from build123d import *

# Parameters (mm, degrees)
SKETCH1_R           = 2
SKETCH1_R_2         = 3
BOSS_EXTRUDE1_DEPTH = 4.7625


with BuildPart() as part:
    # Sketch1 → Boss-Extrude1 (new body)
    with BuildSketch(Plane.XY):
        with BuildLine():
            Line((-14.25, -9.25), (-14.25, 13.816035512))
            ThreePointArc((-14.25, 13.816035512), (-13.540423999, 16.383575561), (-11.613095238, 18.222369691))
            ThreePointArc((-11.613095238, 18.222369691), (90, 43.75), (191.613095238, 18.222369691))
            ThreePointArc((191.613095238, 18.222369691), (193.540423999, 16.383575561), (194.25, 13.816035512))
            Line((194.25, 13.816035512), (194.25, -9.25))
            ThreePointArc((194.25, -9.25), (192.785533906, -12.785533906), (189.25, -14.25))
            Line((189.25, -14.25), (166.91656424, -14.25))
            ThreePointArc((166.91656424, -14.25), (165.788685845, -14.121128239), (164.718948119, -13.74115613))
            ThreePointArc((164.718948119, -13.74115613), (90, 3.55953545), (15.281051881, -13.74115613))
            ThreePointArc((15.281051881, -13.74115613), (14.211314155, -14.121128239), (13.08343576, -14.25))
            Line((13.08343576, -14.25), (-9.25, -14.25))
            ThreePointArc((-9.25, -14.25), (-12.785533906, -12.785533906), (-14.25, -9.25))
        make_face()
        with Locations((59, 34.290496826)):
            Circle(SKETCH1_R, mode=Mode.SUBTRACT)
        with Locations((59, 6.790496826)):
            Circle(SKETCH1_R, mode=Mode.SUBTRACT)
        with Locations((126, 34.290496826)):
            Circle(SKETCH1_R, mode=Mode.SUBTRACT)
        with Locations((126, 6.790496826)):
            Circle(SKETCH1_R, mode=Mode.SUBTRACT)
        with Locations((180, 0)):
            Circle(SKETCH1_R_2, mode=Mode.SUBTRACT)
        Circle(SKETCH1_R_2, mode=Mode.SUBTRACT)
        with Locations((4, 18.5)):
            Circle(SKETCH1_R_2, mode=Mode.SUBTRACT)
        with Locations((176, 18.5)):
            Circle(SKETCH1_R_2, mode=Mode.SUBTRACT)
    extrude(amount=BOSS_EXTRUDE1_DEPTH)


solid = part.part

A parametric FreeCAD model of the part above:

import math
import FreeCAD as App
import Part
import Sketcher
Q = App.Units.Quantity

doc = App.newDocument("Part")
params = doc.addObject("Spreadsheet::Sheet", "Params")
for row, (alias, value) in enumerate([
    ("sketch1_diameter", "6 mm"),
    ("sketch1_diameter2", "4 mm"),
    ("sketch1_radius", "5 mm"),
    ("sketch1_radius2", "170 mm"),
    ("sketch1_radius3", "215 mm"),
    ("pad1_length", "4.7625 mm"),
], start=1):
    params.set(f"A{row}", alias)
    params.set(f"B{row}", "=" + value)
    params.setAlias(f"B{row}", alias)

body = doc.addObject("PartDesign::Body", "Body")

sketch1 = body.newObject("Sketcher::SketchObject", "Sketch")
sketch1.AttachmentSupport = (doc.getObject("XY_Plane"), [""])
sketch1.MapMode = "FlatFace"
sketch1.addGeometry([
    Part.LineSegment(App.Vector(-14.2, 13.8, 0), App.Vector(-14.2, -9.2, 0)),
    Part.ArcOfCircle(Part.Circle(App.Vector(-9.2, -9.2, 0), App.Vector(0, 0, 1), 5), math.radians(180), math.radians(270)),
    Part.LineSegment(App.Vector(-9.2, -14.2, 0), App.Vector(13.1, -14.2, 0)),
    Part.ArcOfCircle(Part.Circle(App.Vector(13.1, -9.2, 0), App.Vector(0, 0, 1), 5), math.radians(-90), math.radians(-64)),
    Part.ArcOfCircle(Part.Circle(App.Vector(90, -166.4, 0), App.Vector(0, 0, 1), 170), math.radians(64), math.radians(116)),
    Part.ArcOfCircle(Part.Circle(App.Vector(166.9, -9.2, 0), App.Vector(0, 0, 1), 5), math.radians(-116), math.radians(-90)),
    Part.LineSegment(App.Vector(166.9, -14.2, 0), App.Vector(189.2, -14.2, 0)),
    Part.ArcOfCircle(Part.Circle(App.Vector(189.2, -9.2, 0), App.Vector(0, 0, 1), 5), math.radians(-90), math.radians(0)),
    Part.LineSegment(App.Vector(194.2, -9.2, 0), App.Vector(194.2, 13.8, 0)),
    Part.ArcOfCircle(Part.Circle(App.Vector(189.2, 13.8, 0), App.Vector(0, 0, 1), 5), math.radians(0), math.radians(62)),
    Part.ArcOfCircle(Part.Circle(App.Vector(90, -171.3, 0), App.Vector(0, 0, 1), 215), math.radians(62), math.radians(118)),
    Part.ArcOfCircle(Part.Circle(App.Vector(-9.2, 13.8, 0), App.Vector(0, 0, 1), 5), math.radians(118), math.radians(180)),
    Part.Circle(App.Vector(180, 0, 0), App.Vector(0, 0, 1), 3),
    Part.Circle(App.Vector(126, 6.8, 0), App.Vector(0, 0, 1), 2),
    Part.Circle(App.Vector(59, 6.8, 0), App.Vector(0, 0, 1), 2),
    Part.Circle(App.Vector(0, 0, 0), App.Vector(0, 0, 1), 3),
    Part.Circle(App.Vector(176, 18.5, 0), App.Vector(0, 0, 1), 3),
    Part.Circle(App.Vector(126, 34.3, 0), App.Vector(0, 0, 1), 2),
    Part.Circle(App.Vector(4, 18.5, 0), App.Vector(0, 0, 1), 3),
    Part.Circle(App.Vector(59, 34.3, 0), App.Vector(0, 0, 1), 2),
], False)
sketch1.addConstraint([
    Sketcher.Constraint("Tangent", 0, 2, 1, 1),
    Sketcher.Constraint("Tangent", 1, 2, 2, 1),
    Sketcher.Constraint("Tangent", 2, 2, 3, 1),
    Sketcher.Constraint("Tangent", 3, 2, 4, 2),
    Sketcher.Constraint("Tangent", 4, 1, 5, 1),
    Sketcher.Constraint("Tangent", 5, 2, 6, 1),
    Sketcher.Constraint("Tangent", 6, 2, 7, 1),
    Sketcher.Constraint("Tangent", 7, 2, 8, 1),
    Sketcher.Constraint("Tangent", 8, 2, 9, 1),
    Sketcher.Constraint("Tangent", 9, 2, 10, 1),
    Sketcher.Constraint("Tangent", 10, 2, 11, 1),
    Sketcher.Constraint("Tangent", 11, 2, 0, 1),
    Sketcher.Constraint("Vertical", 0),
    Sketcher.Constraint("Horizontal", 2),
    Sketcher.Constraint("Horizontal", 6),
    Sketcher.Constraint("Vertical", 8),
    Sketcher.Constraint("Coincident", 15, 3, -1, 1),
    Sketcher.Constraint("Equal", 1, 3),
    Sketcher.Constraint("Equal", 3, 5),
    Sketcher.Constraint("Equal", 5, 7),
    Sketcher.Constraint("Equal", 7, 9),
    Sketcher.Constraint("Equal", 9, 11),
    Sketcher.Constraint("Equal", 13, 14),
    Sketcher.Constraint("Equal", 12, 15),
    Sketcher.Constraint("Equal", 15, 16),
    Sketcher.Constraint("Equal", 14, 17),
    Sketcher.Constraint("Equal", 16, 18),
    Sketcher.Constraint("Equal", 17, 19),
    Sketcher.Constraint("PointOnObject", 12, 3, -1),
    Sketcher.Constraint("Horizontal", 3, 3, 5, 3),
    Sketcher.Constraint("Horizontal", 9, 3, 11, 3),
    Sketcher.Constraint("Horizontal", 13, 3, 14, 3),
    Sketcher.Constraint("Horizontal", 16, 3, 18, 3),
    Sketcher.Constraint("Horizontal", 17, 3, 19, 3),
    Sketcher.Constraint("Vertical", 4, 3, 10, 3),
    Sketcher.Constraint("Vertical", 13, 3, 17, 3),
    Sketcher.Constraint("Vertical", 14, 3, 19, 3),
    Sketcher.Constraint("Diameter", 12, Q("6 mm")),
    Sketcher.Constraint("Diameter", 13, Q("4 mm")),
    Sketcher.Constraint("Radius", 1, Q("5 mm")),
    Sketcher.Constraint("Radius", 4, Q("170 mm")),
    Sketcher.Constraint("Radius", 10, Q("215 mm")),
    Sketcher.Constraint("DistanceX", -1, 1, 4, 3, Q("90 mm")),
    Sketcher.Constraint("DistanceX", -1, 1, 12, 3, Q("180 mm")),
    Sketcher.Constraint("DistanceX", -1, 1, 13, 3, Q("126 mm")),
    Sketcher.Constraint("DistanceX", -1, 1, 14, 3, Q("59 mm")),
    Sketcher.Constraint("DistanceX", -1, 1, 16, 3, Q("176 mm")),
    Sketcher.Constraint("DistanceX", -1, 1, 18, 3, Q("4 mm")),
    Sketcher.Constraint("DistanceY", 10, 3, 3, 3, Q("162 mm")),
    Sketcher.Constraint("DistanceY", -1, 1, 16, 3, Q("18.5 mm")),
    Sketcher.Constraint("DistanceX", 1, 3, 7, 3, Q("198.5 mm")),
    Sketcher.Constraint("DistanceY", 13, 3, 17, 3, Q("27.5 mm")),
    Sketcher.Constraint("DistanceY", 1, 3, -1, 1, Q("9.25 mm")),
    Sketcher.Constraint("DistanceY", 4, 3, 9, 3, Q("180.2565 mm")),
    Sketcher.Constraint("DistanceY", 13, 3, 9, 3, Q("7.025539 mm")),
])
sketch1.setExpression("Constraints[37]", "Params.sketch1_diameter")
sketch1.setExpression("Constraints[38]", "Params.sketch1_diameter2")
sketch1.setExpression("Constraints[39]", "Params.sketch1_radius")
sketch1.setExpression("Constraints[40]", "Params.sketch1_radius2")
sketch1.setExpression("Constraints[41]", "Params.sketch1_radius3")
pad1 = body.newObject("PartDesign::Pad", "Pad")
pad1.Profile = sketch1
pad1.setExpression("Length", "Params.pad1_length")

doc.recompute()
